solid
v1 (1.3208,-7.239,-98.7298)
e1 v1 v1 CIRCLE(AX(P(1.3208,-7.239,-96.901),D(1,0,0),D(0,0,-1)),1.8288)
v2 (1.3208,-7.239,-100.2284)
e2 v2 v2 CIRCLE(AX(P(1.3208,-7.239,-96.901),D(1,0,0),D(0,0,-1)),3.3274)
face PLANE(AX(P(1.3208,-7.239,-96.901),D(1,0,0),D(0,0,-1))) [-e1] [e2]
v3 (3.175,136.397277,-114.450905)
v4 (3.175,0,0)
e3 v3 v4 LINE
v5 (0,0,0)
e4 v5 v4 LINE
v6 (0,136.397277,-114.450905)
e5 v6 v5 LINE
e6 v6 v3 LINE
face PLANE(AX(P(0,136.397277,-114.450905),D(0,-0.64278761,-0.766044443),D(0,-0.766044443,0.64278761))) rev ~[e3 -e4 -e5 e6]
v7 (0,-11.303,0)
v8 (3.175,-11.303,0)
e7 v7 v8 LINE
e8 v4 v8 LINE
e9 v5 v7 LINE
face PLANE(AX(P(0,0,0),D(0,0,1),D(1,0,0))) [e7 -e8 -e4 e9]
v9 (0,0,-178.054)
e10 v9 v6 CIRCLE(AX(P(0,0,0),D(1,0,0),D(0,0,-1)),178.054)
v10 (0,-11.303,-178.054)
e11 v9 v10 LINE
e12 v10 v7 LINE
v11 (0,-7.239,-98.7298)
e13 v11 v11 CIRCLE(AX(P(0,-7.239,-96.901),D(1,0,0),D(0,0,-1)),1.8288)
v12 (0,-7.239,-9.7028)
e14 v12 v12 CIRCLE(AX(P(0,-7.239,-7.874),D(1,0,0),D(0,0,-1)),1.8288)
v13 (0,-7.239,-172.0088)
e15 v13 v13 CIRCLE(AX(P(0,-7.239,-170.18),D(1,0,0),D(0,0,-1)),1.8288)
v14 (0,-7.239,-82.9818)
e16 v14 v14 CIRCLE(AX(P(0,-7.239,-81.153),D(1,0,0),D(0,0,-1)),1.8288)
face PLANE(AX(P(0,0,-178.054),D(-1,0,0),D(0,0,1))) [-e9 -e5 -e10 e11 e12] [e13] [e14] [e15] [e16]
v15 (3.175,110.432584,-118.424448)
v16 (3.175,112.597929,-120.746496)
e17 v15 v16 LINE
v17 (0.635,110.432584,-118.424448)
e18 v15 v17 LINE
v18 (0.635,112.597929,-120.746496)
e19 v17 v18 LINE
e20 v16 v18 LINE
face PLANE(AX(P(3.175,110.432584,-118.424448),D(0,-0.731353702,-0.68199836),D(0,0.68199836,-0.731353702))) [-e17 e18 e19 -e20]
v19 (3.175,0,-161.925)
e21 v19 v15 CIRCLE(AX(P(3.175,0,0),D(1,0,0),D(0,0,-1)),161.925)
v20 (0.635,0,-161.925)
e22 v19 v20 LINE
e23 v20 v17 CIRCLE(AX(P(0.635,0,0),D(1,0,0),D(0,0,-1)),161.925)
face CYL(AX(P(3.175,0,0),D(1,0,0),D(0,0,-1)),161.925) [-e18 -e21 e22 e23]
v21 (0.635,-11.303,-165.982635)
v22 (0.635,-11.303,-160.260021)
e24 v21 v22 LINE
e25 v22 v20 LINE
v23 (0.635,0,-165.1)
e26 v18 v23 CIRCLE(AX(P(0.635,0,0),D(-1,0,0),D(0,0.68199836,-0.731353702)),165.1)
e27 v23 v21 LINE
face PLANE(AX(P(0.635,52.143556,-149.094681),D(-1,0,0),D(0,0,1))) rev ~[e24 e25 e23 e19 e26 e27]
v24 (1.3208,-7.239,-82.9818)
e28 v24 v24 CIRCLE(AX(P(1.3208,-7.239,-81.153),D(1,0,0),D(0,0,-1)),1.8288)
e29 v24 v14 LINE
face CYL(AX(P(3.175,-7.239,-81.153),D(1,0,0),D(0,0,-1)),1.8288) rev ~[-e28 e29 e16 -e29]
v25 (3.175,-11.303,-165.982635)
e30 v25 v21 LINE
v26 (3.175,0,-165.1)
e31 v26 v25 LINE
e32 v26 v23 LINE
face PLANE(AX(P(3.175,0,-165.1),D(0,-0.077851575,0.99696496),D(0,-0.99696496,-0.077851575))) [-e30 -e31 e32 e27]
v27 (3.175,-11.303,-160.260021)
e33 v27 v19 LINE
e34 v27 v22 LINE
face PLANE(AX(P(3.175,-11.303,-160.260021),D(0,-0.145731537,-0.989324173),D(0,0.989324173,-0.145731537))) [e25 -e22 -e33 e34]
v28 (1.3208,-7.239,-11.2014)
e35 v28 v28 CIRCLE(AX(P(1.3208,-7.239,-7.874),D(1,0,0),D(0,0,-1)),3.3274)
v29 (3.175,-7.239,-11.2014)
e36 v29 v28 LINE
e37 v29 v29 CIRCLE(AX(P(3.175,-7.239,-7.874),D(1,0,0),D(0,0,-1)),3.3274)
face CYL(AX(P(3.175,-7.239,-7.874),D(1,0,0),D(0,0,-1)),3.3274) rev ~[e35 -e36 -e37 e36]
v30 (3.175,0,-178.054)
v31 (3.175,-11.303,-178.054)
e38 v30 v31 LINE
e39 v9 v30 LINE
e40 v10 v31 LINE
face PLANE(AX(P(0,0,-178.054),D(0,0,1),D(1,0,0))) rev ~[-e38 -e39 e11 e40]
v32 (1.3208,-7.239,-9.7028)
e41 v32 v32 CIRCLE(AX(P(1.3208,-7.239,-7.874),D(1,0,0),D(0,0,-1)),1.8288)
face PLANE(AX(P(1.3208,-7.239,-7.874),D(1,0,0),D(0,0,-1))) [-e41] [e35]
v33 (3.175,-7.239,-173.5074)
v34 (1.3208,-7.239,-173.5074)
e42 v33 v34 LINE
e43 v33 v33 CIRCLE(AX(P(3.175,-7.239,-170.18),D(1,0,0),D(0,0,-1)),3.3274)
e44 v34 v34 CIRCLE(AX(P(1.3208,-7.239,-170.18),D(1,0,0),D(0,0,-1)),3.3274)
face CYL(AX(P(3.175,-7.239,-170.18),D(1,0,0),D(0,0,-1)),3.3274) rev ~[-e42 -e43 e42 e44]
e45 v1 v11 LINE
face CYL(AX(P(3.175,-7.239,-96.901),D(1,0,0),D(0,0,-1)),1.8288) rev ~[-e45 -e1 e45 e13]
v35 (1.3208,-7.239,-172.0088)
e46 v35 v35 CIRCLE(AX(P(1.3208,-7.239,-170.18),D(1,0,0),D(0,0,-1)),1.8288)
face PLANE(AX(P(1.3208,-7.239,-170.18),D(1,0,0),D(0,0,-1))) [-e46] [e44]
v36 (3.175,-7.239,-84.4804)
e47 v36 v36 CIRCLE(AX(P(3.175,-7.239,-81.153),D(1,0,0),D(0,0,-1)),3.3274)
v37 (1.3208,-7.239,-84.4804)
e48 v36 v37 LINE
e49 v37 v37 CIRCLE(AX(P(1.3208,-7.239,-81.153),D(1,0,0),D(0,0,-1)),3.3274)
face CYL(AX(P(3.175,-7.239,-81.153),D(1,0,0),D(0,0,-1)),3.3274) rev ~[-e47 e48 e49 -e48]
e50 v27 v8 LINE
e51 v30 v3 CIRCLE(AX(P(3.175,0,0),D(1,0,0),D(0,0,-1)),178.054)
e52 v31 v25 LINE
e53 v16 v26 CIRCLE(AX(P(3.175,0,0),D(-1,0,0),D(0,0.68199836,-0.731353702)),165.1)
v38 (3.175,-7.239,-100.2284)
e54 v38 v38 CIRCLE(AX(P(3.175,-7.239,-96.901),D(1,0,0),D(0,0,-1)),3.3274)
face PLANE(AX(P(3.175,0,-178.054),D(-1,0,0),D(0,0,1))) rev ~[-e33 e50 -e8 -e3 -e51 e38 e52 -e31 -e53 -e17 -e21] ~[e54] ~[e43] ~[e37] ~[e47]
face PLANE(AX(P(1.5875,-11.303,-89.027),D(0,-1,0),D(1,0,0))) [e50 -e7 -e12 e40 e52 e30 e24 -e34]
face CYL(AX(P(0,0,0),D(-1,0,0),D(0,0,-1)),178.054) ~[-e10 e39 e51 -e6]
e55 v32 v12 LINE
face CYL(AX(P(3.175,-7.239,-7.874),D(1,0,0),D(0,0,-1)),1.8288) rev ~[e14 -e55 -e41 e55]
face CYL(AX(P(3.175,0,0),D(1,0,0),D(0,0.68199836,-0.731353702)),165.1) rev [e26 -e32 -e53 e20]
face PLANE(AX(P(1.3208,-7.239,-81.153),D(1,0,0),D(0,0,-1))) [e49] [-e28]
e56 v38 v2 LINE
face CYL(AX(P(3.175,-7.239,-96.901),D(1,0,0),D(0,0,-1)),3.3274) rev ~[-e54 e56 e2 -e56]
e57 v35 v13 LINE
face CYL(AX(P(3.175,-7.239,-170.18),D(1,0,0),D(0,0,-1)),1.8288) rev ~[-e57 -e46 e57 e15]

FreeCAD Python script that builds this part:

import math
import FreeCAD as App
import Part
import Sketcher

V = App.Vector
Q = App.Units.Quantity

doc = App.newDocument("Part")
body = doc.addObject("PartDesign::Body", "Body")

sketch1 = doc.addObject("Sketcher::SketchObject", "Sketch")
body.addObject(sketch1)
sketch1.AttachmentSupport = (doc.YZ_Plane, [""])
sketch1.MapMode = "FlatFace"
sketch1.addGeometry(Part.LineSegment(V(0, 0, 0), V(0, -178, 0)), False)
sketch1.addGeometry(Part.ArcOfCircle(Part.Circle(V(0, 0, 0), V(0, 0, 1), 178), math.radians(-90), math.radians(-40)), False)
sketch1.addGeometry(Part.LineSegment(V(136, -114, 0), V(0, 0, 0)), False)
sketch1.addConstraint(Sketcher.Constraint("Coincident", 0, 2, 1, 1))
sketch1.addConstraint(Sketcher.Constraint("Coincident", 1, 2, 2, 1))
sketch1.addConstraint(Sketcher.Constraint("Coincident", 2, 2, 0, 1))
sketch1.addConstraint(Sketcher.Constraint("Vertical", 0))
sketch1.addConstraint(Sketcher.Constraint("Coincident", 1, 3, -1, 1))
sketch1.addConstraint(Sketcher.Constraint("Coincident", 2, 2, -1, 1))
sketch1.addConstraint(Sketcher.Constraint("Radius", 1, Q("7.01 in")))
sketch1.addConstraint(Sketcher.Constraint("Angle", 2, Q("140 deg")))
pad1 = doc.addObject("PartDesign::Pad", "Pad")
body.addObject(pad1)
pad1.Profile = sketch1
pad1.Length = Q("0.125 in")

sketch2 = doc.addObject("Sketcher::SketchObject", "Sketch001")
body.addObject(sketch2)
sketch2.AttachmentSupport = (doc.XZ_Plane, [""])
sketch2.MapMode = "FlatFace"
sketch2.addGeometry(Part.LineSegment(V(0, 0, 0), V(0, -178.1, 0)), False)
sketch2.addGeometry(Part.LineSegment(V(0, -178.1, 0), V(3.2, -178.1, 0)), False)
sketch2.addGeometry(Part.LineSegment(V(3.2, -178.1, 0), V(3.2, 0, 0)), False)
sketch2.addGeometry(Part.LineSegment(V(3.2, 0, 0), V(0, 0, 0)), False)
sketch2.addConstraint(Sketcher.Constraint("Coincident", 0, 2, 1, 1))
sketch2.addConstraint(Sketcher.Constraint("Coincident", 1, 2, 2, 1))
sketch2.addConstraint(Sketcher.Constraint("Coincident", 2, 2, 3, 1))
sketch2.addConstraint(Sketcher.Constraint("Coincident", 3, 2, 0, 1))
sketch2.addConstraint(Sketcher.Constraint("Vertical", 0))
sketch2.addConstraint(Sketcher.Constraint("Horizontal", 1))
sketch2.addConstraint(Sketcher.Constraint("Vertical", 2))
sketch2.addConstraint(Sketcher.Constraint("Horizontal", 3))
sketch2.addConstraint(Sketcher.Constraint("Coincident", 3, 2, -1, 1))
sketch2.addConstraint(Sketcher.Constraint("DistanceY", 0, 2, 0, 1, Q("7.01 in")))
sketch2.addConstraint(Sketcher.Constraint("DistanceX", 1, 1, 1, 2, Q("0.125 in")))
pad2 = doc.addObject("PartDesign::Pad", "Pad001")
body.addObject(pad2)
pad2.Profile = sketch2
pad2.Length = Q("0.445 in")

sketch3 = doc.addObject("Sketcher::SketchObject", "Sketch002")
body.addObject(sketch3)
sketch3.AttachmentSupport = (doc.YZ_Plane, [""])
sketch3.MapMode = "FlatFace"
sketch3.AttachmentOffset = App.Placement(V(0, 0, 0.125 * 25.4), App.Rotation())
sketch3.addGeometry(Part.Circle(V(-7.2, -7.9, 0), V(0, 0, 1), 1.8), False)
sketch3.addGeometry(Part.Circle(V(-7.2, -81.2, 0), V(0, 0, 1), 1.8), False)
sketch3.addGeometry(Part.Circle(V(-7.2, -96.9, 0), V(0, 0, 1), 1.8), False)
sketch3.addGeometry(Part.Circle(V(-7.2, -170.2, 0), V(0, 0, 1), 1.8), False)
sketch3.addConstraint(Sketcher.Constraint("Equal", 0, 1))
sketch3.addConstraint(Sketcher.Constraint("Equal", 1, 2))
sketch3.addConstraint(Sketcher.Constraint("Equal", 2, 3))
sketch3.addConstraint(Sketcher.Constraint("Vertical", 0, 3, 1, 3))
sketch3.addConstraint(Sketcher.Constraint("Vertical", 1, 3, 2, 3))
sketch3.addConstraint(Sketcher.Constraint("Vertical", 2, 3, 3, 3))
sketch3.addConstraint(Sketcher.Constraint("Diameter", 0, Q("0.144 in")))
sketch3.addConstraint(Sketcher.Constraint("DistanceY", 3, 3, -1, 1, Q("6.7 in")))
sketch3.addConstraint(Sketcher.Constraint("DistanceY", 0, 3, -1, 1, Q("0.31 in")))
sketch3.addConstraint(Sketcher.Constraint("DistanceY", 2, 3, 1, 3, Q("0.62 in")))
sketch3.addConstraint(Sketcher.Constraint("DistanceX", 0, 3, -1, 1, Q("0.285 in")))
sketch3.addConstraint(Sketcher.Constraint("DistanceY", 1, 3, -1, 1, Q("3.195 in")))
pocket1 = doc.addObject("PartDesign::Pocket", "Pocket")
body.addObject(pocket1)
pocket1.Profile = sketch3
pocket1.Type = "ThroughAll"

sketch4 = doc.addObject("Sketcher::SketchObject", "Sketch003")
body.addObject(sketch4)
sketch4.AttachmentSupport = (doc.YZ_Plane, [""])
sketch4.MapMode = "FlatFace"
sketch4.AttachmentOffset = App.Placement(V(0, 0, 0.125 * 25.4), App.Rotation())
sketch4.addGeometry(Part.LineSegment(V(-11.3, -166, 0), V(0, -165.1, 0)), False)
sketch4.addGeometry(Part.ArcOfCircle(Part.Circle(V(0, 0, 0), V(0, 0, 1), 165.1), math.radians(-90), math.radians(-47)), False)
sketch4.addGeometry(Part.LineSegment(V(112.6, -120.7, 0), V(110.4, -118.4, 0)), False)
sketch4.addGeometry(Part.ArcOfCircle(Part.Circle(V(0, 0, 0), V(0, 0, 1), 161.9), math.radians(-90), math.radians(-47)), False)
sketch4.addGeometry(Part.LineSegment(V(0, -161.9, 0), V(-11.3, -160.3, 0)), False)
sketch4.addGeometry(Part.LineSegment(V(-11.3, -160.3, 0), V(-11.3, -166, 0)), False)
sketch4.addConstraint(Sketcher.Constraint("Coincident", 0, 2, 1, 1))
sketch4.addConstraint(Sketcher.Constraint("Coincident", 1, 2, 2, 1))
sketch4.addConstraint(Sketcher.Constraint("Coincident", 2, 2, 3, 2))
sketch4.addConstraint(Sketcher.Constraint("Coincident", 3, 1, 4, 1))
sketch4.addConstraint(Sketcher.Constraint("Coincident", 4, 2, 5, 1))
sketch4.addConstraint(Sketcher.Constraint("Coincident", 5, 2, 0, 1))
sketch4.addConstraint(Sketcher.Constraint("Vertical", 5))
sketch4.addConstraint(Sketcher.Constraint("Coincident", 1, 3, -1, 1))
sketch4.addConstraint(Sketcher.Constraint("Coincident", 3, 3, -1, 1))
sketch4.addConstraint(Sketcher.Constraint("PointOnObject", 0, 2, -2))
sketch4.addConstraint(Sketcher.Constraint("PointOnObject", 3, 1, -2))
sketch4.addConstraint(Sketcher.Constraint("Radius", 1, Q("6.5 in")))
sketch4.addConstraint(Sketcher.Constraint("Angle", 2, Q("133 deg")))
sketch4.addConstraint(Sketcher.Constraint("Radius", 3, Q("6.375 in")))
sketch4.addConstraint(Sketcher.Constraint("DistanceX", 4, 2, -1, 1, Q("0.445 in")))
sketch4.addConstraint(Sketcher.Constraint("Distance", 0, Q("11.337409 mm")))
sketch4.addConstraint(Sketcher.Constraint("Distance", 4, Q("11.424971 mm")))
sketch4.addConstraint(Sketcher.Constraint("DistanceX", -1, 1, 1, 2, Q("112.597929 mm")))
pocket2 = doc.addObject("PartDesign::Pocket", "Pocket001")
body.addObject(pocket2)
pocket2.Profile = sketch4
pocket2.Length = Q("0.1 in")

sketch5 = doc.addObject("Sketcher::SketchObject", "Sketch004")
body.addObject(sketch5)
sketch5.AttachmentSupport = (doc.YZ_Plane, [""])
sketch5.MapMode = "FlatFace"
sketch5.AttachmentOffset = App.Placement(V(0, 0, 0.125 * 25.4), App.Rotation())
sketch5.addGeometry(Part.Circle(V(-7.2, -7.9, 0), V(0, 0, 1), 3.3), False)
sketch5.addGeometry(Part.Circle(V(-7.2, -81.2, 0), V(0, 0, 1), 3.3), False)
sketch5.addGeometry(Part.Circle(V(-7.2, -96.9, 0), V(0, 0, 1), 3.3), False)
sketch5.addGeometry(Part.Circle(V(-7.2, -170.2, 0), V(0, 0, 1), 3.3), False)
sketch5.addConstraint(Sketcher.Constraint("Equal", 0, 1))
sketch5.addConstraint(Sketcher.Constraint("Equal", 1, 2))
sketch5.addConstraint(Sketcher.Constraint("Equal", 2, 3))
sketch5.addConstraint(Sketcher.Constraint("Vertical", 0, 3, 1, 3))
sketch5.addConstraint(Sketcher.Constraint("Vertical", 1, 3, 2, 3))
sketch5.addConstraint(Sketcher.Constraint("Vertical", 2, 3, 3, 3))
sketch5.addConstraint(Sketcher.Constraint("Diameter", 0, Q("0.262 in")))
sketch5.addConstraint(Sketcher.Constraint("DistanceY", 3, 3, -1, 1, Q("6.7 in")))
sketch5.addConstraint(Sketcher.Constraint("DistanceY", 0, 3, -1, 1, Q("0.31 in")))
sketch5.addConstraint(Sketcher.Constraint("DistanceY", 2, 3, 1, 3, Q("0.62 in")))
sketch5.addConstraint(Sketcher.Constraint("DistanceX", 0, 3, -1, 1, Q("0.285 in")))
sketch5.addConstraint(Sketcher.Constraint("DistanceY", 1, 3, -1, 1, Q("3.195 in")))
pocket3 = doc.addObject("PartDesign::Pocket", "Pocket002")
body.addObject(pocket3)
pocket3.Profile = sketch5
pocket3.Length = Q("0.073 in")

doc.recompute()
